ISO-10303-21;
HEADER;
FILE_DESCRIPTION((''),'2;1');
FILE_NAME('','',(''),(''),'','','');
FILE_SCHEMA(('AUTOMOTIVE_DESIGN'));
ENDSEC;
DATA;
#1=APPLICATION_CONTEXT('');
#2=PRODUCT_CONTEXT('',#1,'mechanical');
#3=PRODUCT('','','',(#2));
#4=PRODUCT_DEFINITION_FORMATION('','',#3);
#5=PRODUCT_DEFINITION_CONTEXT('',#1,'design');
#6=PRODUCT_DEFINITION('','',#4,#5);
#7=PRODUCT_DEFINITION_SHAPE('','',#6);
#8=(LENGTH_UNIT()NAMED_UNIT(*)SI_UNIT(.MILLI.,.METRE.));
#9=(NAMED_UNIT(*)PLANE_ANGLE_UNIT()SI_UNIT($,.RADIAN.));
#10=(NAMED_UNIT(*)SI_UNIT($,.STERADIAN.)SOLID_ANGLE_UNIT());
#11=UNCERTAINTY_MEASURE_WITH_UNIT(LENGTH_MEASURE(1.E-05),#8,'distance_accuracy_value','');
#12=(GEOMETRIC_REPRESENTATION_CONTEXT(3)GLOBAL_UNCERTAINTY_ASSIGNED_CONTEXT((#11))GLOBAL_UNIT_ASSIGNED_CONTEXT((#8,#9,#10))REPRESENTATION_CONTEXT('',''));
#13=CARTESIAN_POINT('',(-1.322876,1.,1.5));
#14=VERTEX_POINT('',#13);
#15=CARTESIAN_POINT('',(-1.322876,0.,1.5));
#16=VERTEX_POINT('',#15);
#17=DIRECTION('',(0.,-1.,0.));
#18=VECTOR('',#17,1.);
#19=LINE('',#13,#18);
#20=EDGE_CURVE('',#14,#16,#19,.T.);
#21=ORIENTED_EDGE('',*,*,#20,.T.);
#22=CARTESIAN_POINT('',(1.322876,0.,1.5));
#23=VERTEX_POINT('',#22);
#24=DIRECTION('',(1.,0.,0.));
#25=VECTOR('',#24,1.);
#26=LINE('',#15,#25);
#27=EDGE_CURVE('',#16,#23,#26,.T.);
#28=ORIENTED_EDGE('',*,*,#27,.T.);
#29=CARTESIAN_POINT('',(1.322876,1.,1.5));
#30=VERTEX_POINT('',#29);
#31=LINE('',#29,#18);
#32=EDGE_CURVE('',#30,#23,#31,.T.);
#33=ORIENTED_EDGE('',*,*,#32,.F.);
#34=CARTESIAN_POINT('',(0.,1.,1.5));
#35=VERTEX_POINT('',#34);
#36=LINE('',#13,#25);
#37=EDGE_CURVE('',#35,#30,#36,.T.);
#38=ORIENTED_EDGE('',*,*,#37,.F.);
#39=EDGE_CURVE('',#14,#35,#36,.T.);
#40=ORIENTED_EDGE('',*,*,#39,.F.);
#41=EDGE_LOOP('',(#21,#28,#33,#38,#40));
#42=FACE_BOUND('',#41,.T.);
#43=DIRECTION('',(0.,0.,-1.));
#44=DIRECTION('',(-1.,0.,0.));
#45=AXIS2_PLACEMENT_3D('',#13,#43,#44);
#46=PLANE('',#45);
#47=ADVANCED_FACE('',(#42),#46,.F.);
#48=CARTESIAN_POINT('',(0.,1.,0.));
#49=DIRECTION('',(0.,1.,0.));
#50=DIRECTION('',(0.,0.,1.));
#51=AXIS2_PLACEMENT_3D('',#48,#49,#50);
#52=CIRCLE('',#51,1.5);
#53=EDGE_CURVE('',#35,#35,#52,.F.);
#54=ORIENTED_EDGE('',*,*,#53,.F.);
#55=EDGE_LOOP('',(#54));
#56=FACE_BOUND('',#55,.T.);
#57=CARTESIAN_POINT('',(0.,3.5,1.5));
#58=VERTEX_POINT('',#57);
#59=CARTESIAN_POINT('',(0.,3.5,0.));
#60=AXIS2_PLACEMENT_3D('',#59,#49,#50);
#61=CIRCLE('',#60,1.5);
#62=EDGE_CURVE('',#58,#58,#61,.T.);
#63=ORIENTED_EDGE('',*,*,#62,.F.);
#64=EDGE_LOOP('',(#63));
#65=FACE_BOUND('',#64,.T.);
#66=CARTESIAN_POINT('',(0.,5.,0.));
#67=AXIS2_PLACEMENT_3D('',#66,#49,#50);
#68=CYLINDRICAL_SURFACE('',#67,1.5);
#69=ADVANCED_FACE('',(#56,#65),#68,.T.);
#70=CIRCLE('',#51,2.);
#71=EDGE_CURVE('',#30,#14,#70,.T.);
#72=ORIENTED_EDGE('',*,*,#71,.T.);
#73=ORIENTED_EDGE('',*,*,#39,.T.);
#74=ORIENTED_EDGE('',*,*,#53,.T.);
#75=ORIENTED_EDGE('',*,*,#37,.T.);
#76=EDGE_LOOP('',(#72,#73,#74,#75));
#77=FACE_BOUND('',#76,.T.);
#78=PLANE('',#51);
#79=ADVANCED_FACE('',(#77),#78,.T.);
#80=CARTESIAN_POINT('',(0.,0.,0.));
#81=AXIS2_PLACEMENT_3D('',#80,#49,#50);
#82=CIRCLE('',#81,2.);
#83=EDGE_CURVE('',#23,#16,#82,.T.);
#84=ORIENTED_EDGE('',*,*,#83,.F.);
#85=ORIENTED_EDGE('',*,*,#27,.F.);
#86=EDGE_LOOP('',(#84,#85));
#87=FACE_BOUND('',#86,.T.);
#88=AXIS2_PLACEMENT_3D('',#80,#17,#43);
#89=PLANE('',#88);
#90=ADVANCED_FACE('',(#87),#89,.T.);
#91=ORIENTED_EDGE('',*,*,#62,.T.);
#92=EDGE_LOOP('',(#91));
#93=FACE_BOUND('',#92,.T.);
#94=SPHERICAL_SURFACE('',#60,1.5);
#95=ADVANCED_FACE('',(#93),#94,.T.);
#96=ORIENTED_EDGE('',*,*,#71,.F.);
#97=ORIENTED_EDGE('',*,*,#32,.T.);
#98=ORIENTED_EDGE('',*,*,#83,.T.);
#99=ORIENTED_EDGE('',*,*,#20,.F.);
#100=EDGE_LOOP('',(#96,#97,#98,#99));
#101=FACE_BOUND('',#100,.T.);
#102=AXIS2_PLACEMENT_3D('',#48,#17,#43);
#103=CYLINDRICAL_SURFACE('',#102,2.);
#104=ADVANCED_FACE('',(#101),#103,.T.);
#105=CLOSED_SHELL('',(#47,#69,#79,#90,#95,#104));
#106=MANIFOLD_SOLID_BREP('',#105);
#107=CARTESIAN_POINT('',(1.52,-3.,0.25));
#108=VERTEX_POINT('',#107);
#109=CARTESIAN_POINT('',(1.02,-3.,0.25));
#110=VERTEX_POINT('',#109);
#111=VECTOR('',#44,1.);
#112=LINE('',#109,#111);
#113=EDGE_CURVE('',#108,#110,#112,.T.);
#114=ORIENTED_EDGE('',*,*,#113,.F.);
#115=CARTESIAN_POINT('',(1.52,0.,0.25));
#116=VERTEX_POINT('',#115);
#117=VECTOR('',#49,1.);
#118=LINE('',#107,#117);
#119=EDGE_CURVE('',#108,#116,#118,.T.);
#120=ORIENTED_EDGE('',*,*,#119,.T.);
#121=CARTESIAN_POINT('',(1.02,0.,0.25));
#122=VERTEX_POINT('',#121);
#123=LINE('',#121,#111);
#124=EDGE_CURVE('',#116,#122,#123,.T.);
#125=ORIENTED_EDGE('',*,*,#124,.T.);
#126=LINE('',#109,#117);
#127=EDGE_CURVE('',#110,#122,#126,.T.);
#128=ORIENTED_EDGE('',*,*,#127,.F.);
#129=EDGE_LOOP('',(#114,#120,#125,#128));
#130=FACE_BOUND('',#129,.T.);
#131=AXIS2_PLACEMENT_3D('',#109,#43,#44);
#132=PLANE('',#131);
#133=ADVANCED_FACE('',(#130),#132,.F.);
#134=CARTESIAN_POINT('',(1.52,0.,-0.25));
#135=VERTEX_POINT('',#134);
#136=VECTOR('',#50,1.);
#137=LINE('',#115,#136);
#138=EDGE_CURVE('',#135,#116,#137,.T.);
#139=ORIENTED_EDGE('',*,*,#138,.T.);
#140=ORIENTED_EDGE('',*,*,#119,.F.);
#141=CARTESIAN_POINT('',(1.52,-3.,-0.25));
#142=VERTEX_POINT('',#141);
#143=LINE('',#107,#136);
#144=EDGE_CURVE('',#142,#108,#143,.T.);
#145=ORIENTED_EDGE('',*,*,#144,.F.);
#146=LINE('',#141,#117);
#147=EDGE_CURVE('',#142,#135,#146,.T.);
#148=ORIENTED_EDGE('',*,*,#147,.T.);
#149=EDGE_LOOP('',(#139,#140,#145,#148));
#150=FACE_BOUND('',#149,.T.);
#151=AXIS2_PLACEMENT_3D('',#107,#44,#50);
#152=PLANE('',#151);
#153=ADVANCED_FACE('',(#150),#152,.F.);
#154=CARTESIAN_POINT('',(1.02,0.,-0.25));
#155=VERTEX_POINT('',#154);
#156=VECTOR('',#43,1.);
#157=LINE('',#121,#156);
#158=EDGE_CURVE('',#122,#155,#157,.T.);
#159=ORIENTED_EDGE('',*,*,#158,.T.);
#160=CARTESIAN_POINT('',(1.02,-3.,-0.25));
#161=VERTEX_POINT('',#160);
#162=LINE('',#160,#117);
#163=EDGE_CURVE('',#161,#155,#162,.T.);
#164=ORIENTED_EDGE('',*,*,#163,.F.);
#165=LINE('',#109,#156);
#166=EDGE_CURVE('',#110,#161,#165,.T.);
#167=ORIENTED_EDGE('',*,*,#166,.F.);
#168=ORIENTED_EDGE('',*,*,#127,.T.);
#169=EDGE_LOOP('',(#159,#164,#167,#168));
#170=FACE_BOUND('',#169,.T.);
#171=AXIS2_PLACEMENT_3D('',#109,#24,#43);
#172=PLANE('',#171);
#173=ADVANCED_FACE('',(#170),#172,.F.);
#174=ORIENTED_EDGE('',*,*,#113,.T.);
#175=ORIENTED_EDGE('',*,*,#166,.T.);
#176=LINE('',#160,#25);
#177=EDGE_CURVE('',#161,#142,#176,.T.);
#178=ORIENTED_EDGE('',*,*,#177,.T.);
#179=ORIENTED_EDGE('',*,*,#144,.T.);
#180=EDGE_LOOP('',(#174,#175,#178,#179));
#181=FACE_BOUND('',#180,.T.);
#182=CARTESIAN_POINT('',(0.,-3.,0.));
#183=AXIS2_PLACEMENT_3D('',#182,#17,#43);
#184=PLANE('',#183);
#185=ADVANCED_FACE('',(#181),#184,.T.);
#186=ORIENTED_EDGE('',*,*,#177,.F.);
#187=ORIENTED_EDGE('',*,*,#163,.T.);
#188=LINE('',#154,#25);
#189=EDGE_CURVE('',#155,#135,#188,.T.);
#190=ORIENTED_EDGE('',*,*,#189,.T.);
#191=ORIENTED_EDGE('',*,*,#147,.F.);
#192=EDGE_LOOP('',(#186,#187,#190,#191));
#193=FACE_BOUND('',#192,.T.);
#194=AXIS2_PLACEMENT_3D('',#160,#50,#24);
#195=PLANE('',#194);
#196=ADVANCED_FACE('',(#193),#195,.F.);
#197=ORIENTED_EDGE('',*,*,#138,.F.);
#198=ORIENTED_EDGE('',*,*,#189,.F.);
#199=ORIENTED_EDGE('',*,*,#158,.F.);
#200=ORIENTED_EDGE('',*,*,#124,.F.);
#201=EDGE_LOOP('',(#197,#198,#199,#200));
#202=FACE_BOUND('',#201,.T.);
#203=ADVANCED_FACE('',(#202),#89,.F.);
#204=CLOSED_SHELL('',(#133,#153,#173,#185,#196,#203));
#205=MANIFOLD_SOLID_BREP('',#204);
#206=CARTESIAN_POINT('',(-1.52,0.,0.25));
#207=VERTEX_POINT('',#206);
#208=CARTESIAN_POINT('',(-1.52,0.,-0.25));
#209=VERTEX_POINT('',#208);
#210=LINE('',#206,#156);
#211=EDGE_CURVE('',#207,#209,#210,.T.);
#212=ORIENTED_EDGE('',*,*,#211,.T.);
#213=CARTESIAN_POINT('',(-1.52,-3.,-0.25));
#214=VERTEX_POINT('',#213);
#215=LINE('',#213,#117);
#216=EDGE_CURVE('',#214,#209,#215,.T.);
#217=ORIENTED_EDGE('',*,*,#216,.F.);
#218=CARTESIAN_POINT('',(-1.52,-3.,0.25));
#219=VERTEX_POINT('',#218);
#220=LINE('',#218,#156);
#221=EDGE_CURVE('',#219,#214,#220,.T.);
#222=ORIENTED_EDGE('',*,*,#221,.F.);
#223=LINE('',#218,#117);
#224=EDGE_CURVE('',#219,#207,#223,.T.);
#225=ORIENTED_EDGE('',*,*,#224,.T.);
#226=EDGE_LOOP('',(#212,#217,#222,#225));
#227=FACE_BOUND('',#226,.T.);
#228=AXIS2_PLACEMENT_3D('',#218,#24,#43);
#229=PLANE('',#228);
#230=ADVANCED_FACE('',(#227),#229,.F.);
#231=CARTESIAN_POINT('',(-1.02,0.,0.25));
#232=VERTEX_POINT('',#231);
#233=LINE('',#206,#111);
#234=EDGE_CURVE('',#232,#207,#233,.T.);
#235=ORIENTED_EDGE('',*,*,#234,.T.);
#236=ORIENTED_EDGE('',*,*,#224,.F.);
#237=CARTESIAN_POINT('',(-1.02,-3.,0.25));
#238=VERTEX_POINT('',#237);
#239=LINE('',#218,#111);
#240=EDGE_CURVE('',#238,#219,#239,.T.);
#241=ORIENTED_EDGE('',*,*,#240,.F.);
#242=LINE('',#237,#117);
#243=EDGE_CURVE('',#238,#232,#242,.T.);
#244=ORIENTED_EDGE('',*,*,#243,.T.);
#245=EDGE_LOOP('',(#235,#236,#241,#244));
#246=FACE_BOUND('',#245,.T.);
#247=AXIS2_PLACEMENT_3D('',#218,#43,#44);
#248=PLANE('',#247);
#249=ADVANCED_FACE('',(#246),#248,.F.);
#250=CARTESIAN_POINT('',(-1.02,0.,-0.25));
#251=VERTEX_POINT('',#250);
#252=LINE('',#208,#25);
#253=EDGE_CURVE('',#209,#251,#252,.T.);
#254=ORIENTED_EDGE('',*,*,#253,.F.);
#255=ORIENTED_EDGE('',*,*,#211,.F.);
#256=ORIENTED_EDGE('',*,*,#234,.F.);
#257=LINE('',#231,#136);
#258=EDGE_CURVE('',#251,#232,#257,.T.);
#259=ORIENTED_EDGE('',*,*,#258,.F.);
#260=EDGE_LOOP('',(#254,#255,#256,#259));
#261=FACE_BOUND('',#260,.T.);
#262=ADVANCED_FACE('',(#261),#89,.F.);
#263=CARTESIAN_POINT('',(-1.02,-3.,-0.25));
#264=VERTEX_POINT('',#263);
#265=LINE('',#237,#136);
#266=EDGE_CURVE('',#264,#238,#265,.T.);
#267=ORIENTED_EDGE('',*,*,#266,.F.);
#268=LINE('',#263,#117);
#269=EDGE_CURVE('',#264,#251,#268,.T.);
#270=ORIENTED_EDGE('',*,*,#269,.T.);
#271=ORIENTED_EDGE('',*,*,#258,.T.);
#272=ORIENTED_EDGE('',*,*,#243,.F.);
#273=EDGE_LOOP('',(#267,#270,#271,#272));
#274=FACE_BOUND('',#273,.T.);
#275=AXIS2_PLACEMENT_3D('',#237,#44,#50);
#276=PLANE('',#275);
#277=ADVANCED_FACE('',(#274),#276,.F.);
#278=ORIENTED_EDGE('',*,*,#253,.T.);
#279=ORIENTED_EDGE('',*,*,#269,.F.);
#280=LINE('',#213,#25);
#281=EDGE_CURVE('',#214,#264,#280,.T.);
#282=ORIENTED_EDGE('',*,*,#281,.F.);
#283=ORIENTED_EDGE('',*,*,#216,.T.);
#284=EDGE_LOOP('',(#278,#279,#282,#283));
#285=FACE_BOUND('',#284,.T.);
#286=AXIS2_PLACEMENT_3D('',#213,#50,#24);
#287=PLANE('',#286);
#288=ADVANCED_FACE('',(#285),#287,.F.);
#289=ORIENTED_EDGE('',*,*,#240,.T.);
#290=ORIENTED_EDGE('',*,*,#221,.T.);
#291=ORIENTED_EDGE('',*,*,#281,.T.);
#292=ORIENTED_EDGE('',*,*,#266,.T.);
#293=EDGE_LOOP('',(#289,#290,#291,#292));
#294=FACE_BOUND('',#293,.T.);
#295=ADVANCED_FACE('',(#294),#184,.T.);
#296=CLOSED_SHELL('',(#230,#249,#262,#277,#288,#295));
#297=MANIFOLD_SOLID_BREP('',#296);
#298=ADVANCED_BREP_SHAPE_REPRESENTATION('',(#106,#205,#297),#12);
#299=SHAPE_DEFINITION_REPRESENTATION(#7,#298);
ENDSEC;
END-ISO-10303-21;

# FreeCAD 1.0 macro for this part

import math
import FreeCAD as App
import Part
import Sketcher

doc = App.newDocument("Part")
params = doc.addObject("Spreadsheet::Sheet", "Params")
for row, (alias, value) in enumerate([
    ("sketch1_radius", "1.5 mm"),
    ("sketch1_width", "5 mm"),
    ("revolution_angle", "360 deg"),
    ("sketch2_radius", "2 mm"),
    ("pad1_length", "1 mm"),
    ("sketch3_width", "0.5 mm"),
    ("pad2_length", "3 mm"),
    ("sketch4_width", "0.5 mm"),
    ("pad3_length", "3 mm"),
], start=1):
    params.set(f"A{row}", alias)
    params.set(f"B{row}", "=" + value)
    params.setAlias(f"B{row}", alias)

body = doc.addObject("PartDesign::Body", "Body")

# Sketch on YZ plane
sketch1 = body.newObject("Sketcher::SketchObject", "Sketch")
sketch1.AttachmentSupport = (doc.getObject("YZ_Plane"), [""])
sketch1.MapMode = "FlatFace"
sketch1.addGeometry([
    Part.LineSegment(App.Vector(3.5, 1.5, 0), App.Vector(0, 1.5, 0)),
    Part.LineSegment(App.Vector(0, 1.5, 0), App.Vector(0, 0, 0)),
    Part.LineSegment(App.Vector(0, 0, 0), App.Vector(5, 0, 0)),
    Part.ArcOfCircle(Part.Circle(App.Vector(3.5, 0, 0), App.Vector(0, 0, 1), 1.5), math.radians(0), math.radians(90)),
], False)
sketch1.addConstraint([
    Sketcher.Constraint("Coincident", 0, 2, 1, 1),
    Sketcher.Constraint("Coincident", 1, 2, 2, 1),
    Sketcher.Constraint("Coincident", 2, 2, 3, 1),
    Sketcher.Constraint("Tangent", 3, 2, 0, 1),
    Sketcher.Constraint("Horizontal", 0),
    Sketcher.Constraint("Vertical", 1),
    Sketcher.Constraint("Horizontal", 2),
    Sketcher.Constraint("Coincident", 1, 2, -1, 1),
    Sketcher.Constraint("PointOnObject", 3, 3, -1),
    Sketcher.Constraint("Radius", 3, 1.5),
    Sketcher.Constraint("DistanceX", 2, 1, 2, 2, 5.0),
])
sketch1.setExpression("Constraints[9]", "Params.sketch1_radius")
sketch1.setExpression("Constraints[10]", "Params.sketch1_width")
revolution = body.newObject("PartDesign::Revolution", "Revolution")
revolution.Profile = sketch1
revolution.ReferenceAxis = (sketch1, ["H_Axis"])
revolution.setExpression("Angle", "Params.revolution_angle")

# Sketch on XZ plane
sketch2 = body.newObject("Sketcher::SketchObject", "Sketch001")
sketch2.AttachmentSupport = (doc.getObject("XZ_Plane"), [""])
sketch2.MapMode = "FlatFace"
sketch2.addGeometry([
    Part.LineSegment(App.Vector(-1.322876, 1.5, 0), App.Vector(1.322876, 1.5, 0)),
    Part.ArcOfCircle(Part.Circle(App.Vector(0, 0, 0), App.Vector(0, 0, 1), 2), math.radians(131.409622), math.radians(408.590378)),
], False)
sketch2.addConstraint([
    Sketcher.Constraint("Coincident", 0, 1, 1, 1),
    Sketcher.Constraint("Coincident", 1, 2, 0, 2),
    Sketcher.Constraint("Horizontal", 0),
    Sketcher.Constraint("Coincident", 1, 3, -1, 1),
    Sketcher.Constraint("Radius", 1, 2.0),
    Sketcher.Constraint("DistanceY", -1, 1, 0, 1, 1.5),
])
sketch2.setExpression("Constraints[4]", "Params.sketch2_radius")
pad1 = body.newObject("PartDesign::Pad", "Pad")
pad1.Profile = sketch2
pad1.setExpression("Length", "Params.pad1_length")
pad1.Reversed = True
body2 = doc.addObject("PartDesign::Body", "Body001")

# Sketch on XZ plane
sketch3 = body2.newObject("Sketcher::SketchObject", "Sketch002")
sketch3.AttachmentSupport = (doc.getObject("XZ_Plane001"), [""])
sketch3.MapMode = "FlatFace"
sketch3.addGeometry([
    Part.LineSegment(App.Vector(-1.52, 0.25, 0), App.Vector(-1.52, -0.25, 0)),
    Part.LineSegment(App.Vector(-1.52, -0.25, 0), App.Vector(-1.02, -0.25, 0)),
    Part.LineSegment(App.Vector(-1.02, -0.25, 0), App.Vector(-1.02, 0.25, 0)),
    Part.LineSegment(App.Vector(-1.02, 0.25, 0), App.Vector(-1.52, 0.25, 0)),
], False)
sketch3.addConstraint([
    Sketcher.Constraint("Coincident", 0, 2, 1, 1),
    Sketcher.Constraint("Coincident", 1, 2, 2, 1),
    Sketcher.Constraint("Coincident", 2, 2, 3, 1),
    Sketcher.Constraint("Coincident", 3, 2, 0, 1),
    Sketcher.Constraint("Vertical", 0),
    Sketcher.Constraint("Horizontal", 1),
    Sketcher.Constraint("Vertical", 2),
    Sketcher.Constraint("Horizontal", 3),
    Sketcher.Constraint("Equal", 3, 0),
    Sketcher.Constraint("DistanceX", 1, 1, 1, 2, 0.5),
    Sketcher.Constraint("DistanceX", 0, 2, -1, 1, 1.52),
    Sketcher.Constraint("DistanceY", 0, 2, -1, 1, 0.25),
])
sketch3.setExpression("Constraints[9]", "Params.sketch3_width")
pad2 = body2.newObject("PartDesign::Pad", "Pad001")
pad2.Profile = sketch3
pad2.setExpression("Length", "Params.pad2_length")
body3 = doc.addObject("PartDesign::Body", "Body002")

# Sketch on XZ plane
sketch4 = body3.newObject("Sketcher::SketchObject", "Sketch003")
sketch4.AttachmentSupport = (doc.getObject("XZ_Plane002"), [""])
sketch4.MapMode = "FlatFace"
sketch4.addGeometry([
    Part.LineSegment(App.Vector(1.02, 0.25, 0), App.Vector(1.02, -0.25, 0)),
    Part.LineSegment(App.Vector(1.02, -0.25, 0), App.Vector(1.52, -0.25, 0)),
    Part.LineSegment(App.Vector(1.52, -0.25, 0), App.Vector(1.52, 0.25, 0)),
    Part.LineSegment(App.Vector(1.52, 0.25, 0), App.Vector(1.02, 0.25, 0)),
], False)
sketch4.addConstraint([
    Sketcher.Constraint("Coincident", 0, 2, 1, 1),
    Sketcher.Constraint("Coincident", 1, 2, 2, 1),
    Sketcher.Constraint("Coincident", 2, 2, 3, 1),
    Sketcher.Constraint("Coincident", 3, 2, 0, 1),
    Sketcher.Constraint("Vertical", 0),
    Sketcher.Constraint("Horizontal", 1),
    Sketcher.Constraint("Vertical", 2),
    Sketcher.Constraint("Horizontal", 3),
    Sketcher.Constraint("Equal", 3, 0),
    Sketcher.Constraint("DistanceX", 1, 1, 1, 2, 0.5),
    Sketcher.Constraint("DistanceX", -1, 1, 0, 2, 1.02),
    Sketcher.Constraint("DistanceY", 0, 2, -1, 1, 0.25),
])
sketch4.setExpression("Constraints[9]", "Params.sketch4_width")
pad3 = body3.newObject("PartDesign::Pad", "Pad002")
pad3.Profile = sketch4
pad3.setExpression("Length", "Params.pad3_length")

doc.recompute()
